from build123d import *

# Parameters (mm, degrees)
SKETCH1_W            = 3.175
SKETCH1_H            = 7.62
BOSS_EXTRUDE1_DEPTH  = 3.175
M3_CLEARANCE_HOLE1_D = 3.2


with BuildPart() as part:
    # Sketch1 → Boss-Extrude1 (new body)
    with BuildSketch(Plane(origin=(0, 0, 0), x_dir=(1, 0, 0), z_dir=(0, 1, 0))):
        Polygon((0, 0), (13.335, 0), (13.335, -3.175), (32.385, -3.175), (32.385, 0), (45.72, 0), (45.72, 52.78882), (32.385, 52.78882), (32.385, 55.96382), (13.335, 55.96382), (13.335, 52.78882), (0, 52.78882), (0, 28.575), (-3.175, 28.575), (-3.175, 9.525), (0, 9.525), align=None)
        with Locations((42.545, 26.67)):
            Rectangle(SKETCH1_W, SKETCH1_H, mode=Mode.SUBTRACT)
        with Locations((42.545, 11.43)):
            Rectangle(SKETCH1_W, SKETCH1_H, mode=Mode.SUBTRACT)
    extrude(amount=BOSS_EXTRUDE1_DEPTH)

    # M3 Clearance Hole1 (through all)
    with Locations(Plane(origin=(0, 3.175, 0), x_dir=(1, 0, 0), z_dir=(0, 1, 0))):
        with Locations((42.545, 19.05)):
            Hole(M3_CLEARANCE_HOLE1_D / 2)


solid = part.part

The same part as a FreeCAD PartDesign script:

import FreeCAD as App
import Part
import Sketcher

V = App.Vector
Q = App.Units.Quantity


def add_polygon(sketch, points):
    """Adds a closed chain of lines whose ends are joined by coincident constraints."""
    first, n = sketch.GeometryCount, len(points)
    for a, b in zip(points, points[1:] + points[:1]):
        sketch.addGeometry(Part.LineSegment(App.Vector(*a, 0), App.Vector(*b, 0)), False)
    for i in range(n):
        sketch.addConstraint(Sketcher.Constraint("Coincident", first + i, 2, first + (i + 1) % n, 1))

doc = App.newDocument("Part")
body = doc.addObject("PartDesign::Body", "Body")

# Sketch on XZ plane
sketch1 = body.newObject("Sketcher::SketchObject", "Sketch")
sketch1.AttachmentSupport = (doc.getObject("XZ_Plane"), [""])
sketch1.MapMode = "FlatFace"
add_polygon(sketch1, [(0, 0), (13.3, 0), (13.3, 3.2), (32.4, 3.2), (32.4, 0), (45.7, 0), (45.7, -52.8), (32.4, -52.8), (32.4, -56), (13.3, -56), (13.3, -52.8), (0, -52.8), (0, -28.6), (-3.2, -28.6), (-3.2, -9.5), (0, -9.5)])  # lines 0-15
add_polygon(sketch1, [(44.1, -7.6), (41, -7.6), (41, -15.2), (44.1, -15.2)])  # lines 16-19
add_polygon(sketch1, [(44.1, -22.9), (41, -22.9), (41, -30.5), (44.1, -30.5)])  # lines 20-23
sketch1.addConstraint([
    Sketcher.Constraint("Horizontal", 0),
    Sketcher.Constraint("Vertical", 1),
    Sketcher.Constraint("Horizontal", 2),
    Sketcher.Constraint("Vertical", 3),
    Sketcher.Constraint("Horizontal", 4),
    Sketcher.Constraint("Vertical", 5),
    Sketcher.Constraint("Horizontal", 6),
    Sketcher.Constraint("Vertical", 7),
    Sketcher.Constraint("Horizontal", 8),
    Sketcher.Constraint("Vertical", 9),
    Sketcher.Constraint("Horizontal", 10),
    Sketcher.Constraint("Vertical", 11),
    Sketcher.Constraint("Horizontal", 12),
    Sketcher.Constraint("Vertical", 13),
    Sketcher.Constraint("Horizontal", 14),
    Sketcher.Constraint("Vertical", 15),
    Sketcher.Constraint("Horizontal", 16),
    Sketcher.Constraint("Vertical", 17),
    Sketcher.Constraint("Horizontal", 18),
    Sketcher.Constraint("Vertical", 19),
    Sketcher.Constraint("Horizontal", 20),
    Sketcher.Constraint("Vertical", 21),
    Sketcher.Constraint("Horizontal", 22),
    Sketcher.Constraint("Vertical", 23),
    Sketcher.Constraint("Coincident", 15, 2, -1, 1),
    Sketcher.Constraint("PointOnObject", 3, 2, -1),
    Sketcher.Constraint("PointOnObject", 10, 2, -2),
    Sketcher.Constraint("Horizontal", 6, 2, 9, 2),
    Sketcher.Constraint("Vertical", 3, 2, 6, 2),
    Sketcher.Constraint("Vertical", 1, 2, 8, 2),
    Sketcher.Constraint("Vertical", 17, 2, 20, 2),
    Sketcher.Constraint("Vertical", 19, 2, 22, 2),
    Sketcher.Constraint("Equal", 0, 4),
    Sketcher.Constraint("Equal", 14, 16),
    Sketcher.Constraint("Equal", 22, 1),
    Sketcher.Constraint("Equal", 3, 7),
    Sketcher.Constraint("Equal", 8, 13),
    Sketcher.Constraint("Equal", 19, 21),
    Sketcher.Constraint("DistanceY", 17, 2, 17, 1, Q("0.3 in")),
    Sketcher.Constraint("DistanceX", 2, 1, 2, 2, Q("0.75 in")),
    Sketcher.Constraint("DistanceX", -1, 1, 4, 2, Q("1.8 in")),
    Sketcher.Constraint("DistanceY", 16, 2, -1, 1, Q("0.3 in")),
    Sketcher.Constraint("DistanceY", 20, 2, -1, 1, Q("0.9 in")),
    Sketcher.Constraint("DistanceY", 13, 2, 1, 2, Q("0.5 in")),
    Sketcher.Constraint("DistanceX", 13, 2, 3, 2, Q("1.4 in")),
    Sketcher.Constraint("DistanceY", 5, 2, 5, 1, Q("2.0783 in")),
    Sketcher.Constraint("DistanceX", 16, 2, 4, 2, Q("0.1875 in")),
])
pad1 = body.newObject("PartDesign::Pad", "Pad")
pad1.Profile = sketch1
pad1.Length = Q("0.125 in")
pad1.Reversed = True

# Sketch on XZ plane
sketch2 = body.newObject("Sketcher::SketchObject", "Sketch001")
sketch2.AttachmentSupport = (doc.getObject("XZ_Plane"), [""])
sketch2.MapMode = "FlatFace"
sketch2.AttachmentOffset = App.Placement(V(0, 0, -0.125 * 25.4), App.Rotation())
sketch2.addGeometry(Part.Circle(V(42.5, -19.1, 0), V(0, 0, 1), 1.6), False)
sketch2.addConstraint([
    Sketcher.Constraint("Diameter", 0, Q("3.2 mm")),
    Sketcher.Constraint("DistanceY", 0, 3, -1, 1, Q("0.75 in")),
    Sketcher.Constraint("DistanceX", -1, 1, 0, 3, Q("1.675 in")),
])
doc.recompute()
hole = body.newObject("PartDesign::Hole", "Hole")
hole.Profile = sketch2
hole.ThreadType = "None"
hole.Diameter = 3.2
hole.DepthType = "ThroughAll"
hole.Reversed = True

doc.recompute()
